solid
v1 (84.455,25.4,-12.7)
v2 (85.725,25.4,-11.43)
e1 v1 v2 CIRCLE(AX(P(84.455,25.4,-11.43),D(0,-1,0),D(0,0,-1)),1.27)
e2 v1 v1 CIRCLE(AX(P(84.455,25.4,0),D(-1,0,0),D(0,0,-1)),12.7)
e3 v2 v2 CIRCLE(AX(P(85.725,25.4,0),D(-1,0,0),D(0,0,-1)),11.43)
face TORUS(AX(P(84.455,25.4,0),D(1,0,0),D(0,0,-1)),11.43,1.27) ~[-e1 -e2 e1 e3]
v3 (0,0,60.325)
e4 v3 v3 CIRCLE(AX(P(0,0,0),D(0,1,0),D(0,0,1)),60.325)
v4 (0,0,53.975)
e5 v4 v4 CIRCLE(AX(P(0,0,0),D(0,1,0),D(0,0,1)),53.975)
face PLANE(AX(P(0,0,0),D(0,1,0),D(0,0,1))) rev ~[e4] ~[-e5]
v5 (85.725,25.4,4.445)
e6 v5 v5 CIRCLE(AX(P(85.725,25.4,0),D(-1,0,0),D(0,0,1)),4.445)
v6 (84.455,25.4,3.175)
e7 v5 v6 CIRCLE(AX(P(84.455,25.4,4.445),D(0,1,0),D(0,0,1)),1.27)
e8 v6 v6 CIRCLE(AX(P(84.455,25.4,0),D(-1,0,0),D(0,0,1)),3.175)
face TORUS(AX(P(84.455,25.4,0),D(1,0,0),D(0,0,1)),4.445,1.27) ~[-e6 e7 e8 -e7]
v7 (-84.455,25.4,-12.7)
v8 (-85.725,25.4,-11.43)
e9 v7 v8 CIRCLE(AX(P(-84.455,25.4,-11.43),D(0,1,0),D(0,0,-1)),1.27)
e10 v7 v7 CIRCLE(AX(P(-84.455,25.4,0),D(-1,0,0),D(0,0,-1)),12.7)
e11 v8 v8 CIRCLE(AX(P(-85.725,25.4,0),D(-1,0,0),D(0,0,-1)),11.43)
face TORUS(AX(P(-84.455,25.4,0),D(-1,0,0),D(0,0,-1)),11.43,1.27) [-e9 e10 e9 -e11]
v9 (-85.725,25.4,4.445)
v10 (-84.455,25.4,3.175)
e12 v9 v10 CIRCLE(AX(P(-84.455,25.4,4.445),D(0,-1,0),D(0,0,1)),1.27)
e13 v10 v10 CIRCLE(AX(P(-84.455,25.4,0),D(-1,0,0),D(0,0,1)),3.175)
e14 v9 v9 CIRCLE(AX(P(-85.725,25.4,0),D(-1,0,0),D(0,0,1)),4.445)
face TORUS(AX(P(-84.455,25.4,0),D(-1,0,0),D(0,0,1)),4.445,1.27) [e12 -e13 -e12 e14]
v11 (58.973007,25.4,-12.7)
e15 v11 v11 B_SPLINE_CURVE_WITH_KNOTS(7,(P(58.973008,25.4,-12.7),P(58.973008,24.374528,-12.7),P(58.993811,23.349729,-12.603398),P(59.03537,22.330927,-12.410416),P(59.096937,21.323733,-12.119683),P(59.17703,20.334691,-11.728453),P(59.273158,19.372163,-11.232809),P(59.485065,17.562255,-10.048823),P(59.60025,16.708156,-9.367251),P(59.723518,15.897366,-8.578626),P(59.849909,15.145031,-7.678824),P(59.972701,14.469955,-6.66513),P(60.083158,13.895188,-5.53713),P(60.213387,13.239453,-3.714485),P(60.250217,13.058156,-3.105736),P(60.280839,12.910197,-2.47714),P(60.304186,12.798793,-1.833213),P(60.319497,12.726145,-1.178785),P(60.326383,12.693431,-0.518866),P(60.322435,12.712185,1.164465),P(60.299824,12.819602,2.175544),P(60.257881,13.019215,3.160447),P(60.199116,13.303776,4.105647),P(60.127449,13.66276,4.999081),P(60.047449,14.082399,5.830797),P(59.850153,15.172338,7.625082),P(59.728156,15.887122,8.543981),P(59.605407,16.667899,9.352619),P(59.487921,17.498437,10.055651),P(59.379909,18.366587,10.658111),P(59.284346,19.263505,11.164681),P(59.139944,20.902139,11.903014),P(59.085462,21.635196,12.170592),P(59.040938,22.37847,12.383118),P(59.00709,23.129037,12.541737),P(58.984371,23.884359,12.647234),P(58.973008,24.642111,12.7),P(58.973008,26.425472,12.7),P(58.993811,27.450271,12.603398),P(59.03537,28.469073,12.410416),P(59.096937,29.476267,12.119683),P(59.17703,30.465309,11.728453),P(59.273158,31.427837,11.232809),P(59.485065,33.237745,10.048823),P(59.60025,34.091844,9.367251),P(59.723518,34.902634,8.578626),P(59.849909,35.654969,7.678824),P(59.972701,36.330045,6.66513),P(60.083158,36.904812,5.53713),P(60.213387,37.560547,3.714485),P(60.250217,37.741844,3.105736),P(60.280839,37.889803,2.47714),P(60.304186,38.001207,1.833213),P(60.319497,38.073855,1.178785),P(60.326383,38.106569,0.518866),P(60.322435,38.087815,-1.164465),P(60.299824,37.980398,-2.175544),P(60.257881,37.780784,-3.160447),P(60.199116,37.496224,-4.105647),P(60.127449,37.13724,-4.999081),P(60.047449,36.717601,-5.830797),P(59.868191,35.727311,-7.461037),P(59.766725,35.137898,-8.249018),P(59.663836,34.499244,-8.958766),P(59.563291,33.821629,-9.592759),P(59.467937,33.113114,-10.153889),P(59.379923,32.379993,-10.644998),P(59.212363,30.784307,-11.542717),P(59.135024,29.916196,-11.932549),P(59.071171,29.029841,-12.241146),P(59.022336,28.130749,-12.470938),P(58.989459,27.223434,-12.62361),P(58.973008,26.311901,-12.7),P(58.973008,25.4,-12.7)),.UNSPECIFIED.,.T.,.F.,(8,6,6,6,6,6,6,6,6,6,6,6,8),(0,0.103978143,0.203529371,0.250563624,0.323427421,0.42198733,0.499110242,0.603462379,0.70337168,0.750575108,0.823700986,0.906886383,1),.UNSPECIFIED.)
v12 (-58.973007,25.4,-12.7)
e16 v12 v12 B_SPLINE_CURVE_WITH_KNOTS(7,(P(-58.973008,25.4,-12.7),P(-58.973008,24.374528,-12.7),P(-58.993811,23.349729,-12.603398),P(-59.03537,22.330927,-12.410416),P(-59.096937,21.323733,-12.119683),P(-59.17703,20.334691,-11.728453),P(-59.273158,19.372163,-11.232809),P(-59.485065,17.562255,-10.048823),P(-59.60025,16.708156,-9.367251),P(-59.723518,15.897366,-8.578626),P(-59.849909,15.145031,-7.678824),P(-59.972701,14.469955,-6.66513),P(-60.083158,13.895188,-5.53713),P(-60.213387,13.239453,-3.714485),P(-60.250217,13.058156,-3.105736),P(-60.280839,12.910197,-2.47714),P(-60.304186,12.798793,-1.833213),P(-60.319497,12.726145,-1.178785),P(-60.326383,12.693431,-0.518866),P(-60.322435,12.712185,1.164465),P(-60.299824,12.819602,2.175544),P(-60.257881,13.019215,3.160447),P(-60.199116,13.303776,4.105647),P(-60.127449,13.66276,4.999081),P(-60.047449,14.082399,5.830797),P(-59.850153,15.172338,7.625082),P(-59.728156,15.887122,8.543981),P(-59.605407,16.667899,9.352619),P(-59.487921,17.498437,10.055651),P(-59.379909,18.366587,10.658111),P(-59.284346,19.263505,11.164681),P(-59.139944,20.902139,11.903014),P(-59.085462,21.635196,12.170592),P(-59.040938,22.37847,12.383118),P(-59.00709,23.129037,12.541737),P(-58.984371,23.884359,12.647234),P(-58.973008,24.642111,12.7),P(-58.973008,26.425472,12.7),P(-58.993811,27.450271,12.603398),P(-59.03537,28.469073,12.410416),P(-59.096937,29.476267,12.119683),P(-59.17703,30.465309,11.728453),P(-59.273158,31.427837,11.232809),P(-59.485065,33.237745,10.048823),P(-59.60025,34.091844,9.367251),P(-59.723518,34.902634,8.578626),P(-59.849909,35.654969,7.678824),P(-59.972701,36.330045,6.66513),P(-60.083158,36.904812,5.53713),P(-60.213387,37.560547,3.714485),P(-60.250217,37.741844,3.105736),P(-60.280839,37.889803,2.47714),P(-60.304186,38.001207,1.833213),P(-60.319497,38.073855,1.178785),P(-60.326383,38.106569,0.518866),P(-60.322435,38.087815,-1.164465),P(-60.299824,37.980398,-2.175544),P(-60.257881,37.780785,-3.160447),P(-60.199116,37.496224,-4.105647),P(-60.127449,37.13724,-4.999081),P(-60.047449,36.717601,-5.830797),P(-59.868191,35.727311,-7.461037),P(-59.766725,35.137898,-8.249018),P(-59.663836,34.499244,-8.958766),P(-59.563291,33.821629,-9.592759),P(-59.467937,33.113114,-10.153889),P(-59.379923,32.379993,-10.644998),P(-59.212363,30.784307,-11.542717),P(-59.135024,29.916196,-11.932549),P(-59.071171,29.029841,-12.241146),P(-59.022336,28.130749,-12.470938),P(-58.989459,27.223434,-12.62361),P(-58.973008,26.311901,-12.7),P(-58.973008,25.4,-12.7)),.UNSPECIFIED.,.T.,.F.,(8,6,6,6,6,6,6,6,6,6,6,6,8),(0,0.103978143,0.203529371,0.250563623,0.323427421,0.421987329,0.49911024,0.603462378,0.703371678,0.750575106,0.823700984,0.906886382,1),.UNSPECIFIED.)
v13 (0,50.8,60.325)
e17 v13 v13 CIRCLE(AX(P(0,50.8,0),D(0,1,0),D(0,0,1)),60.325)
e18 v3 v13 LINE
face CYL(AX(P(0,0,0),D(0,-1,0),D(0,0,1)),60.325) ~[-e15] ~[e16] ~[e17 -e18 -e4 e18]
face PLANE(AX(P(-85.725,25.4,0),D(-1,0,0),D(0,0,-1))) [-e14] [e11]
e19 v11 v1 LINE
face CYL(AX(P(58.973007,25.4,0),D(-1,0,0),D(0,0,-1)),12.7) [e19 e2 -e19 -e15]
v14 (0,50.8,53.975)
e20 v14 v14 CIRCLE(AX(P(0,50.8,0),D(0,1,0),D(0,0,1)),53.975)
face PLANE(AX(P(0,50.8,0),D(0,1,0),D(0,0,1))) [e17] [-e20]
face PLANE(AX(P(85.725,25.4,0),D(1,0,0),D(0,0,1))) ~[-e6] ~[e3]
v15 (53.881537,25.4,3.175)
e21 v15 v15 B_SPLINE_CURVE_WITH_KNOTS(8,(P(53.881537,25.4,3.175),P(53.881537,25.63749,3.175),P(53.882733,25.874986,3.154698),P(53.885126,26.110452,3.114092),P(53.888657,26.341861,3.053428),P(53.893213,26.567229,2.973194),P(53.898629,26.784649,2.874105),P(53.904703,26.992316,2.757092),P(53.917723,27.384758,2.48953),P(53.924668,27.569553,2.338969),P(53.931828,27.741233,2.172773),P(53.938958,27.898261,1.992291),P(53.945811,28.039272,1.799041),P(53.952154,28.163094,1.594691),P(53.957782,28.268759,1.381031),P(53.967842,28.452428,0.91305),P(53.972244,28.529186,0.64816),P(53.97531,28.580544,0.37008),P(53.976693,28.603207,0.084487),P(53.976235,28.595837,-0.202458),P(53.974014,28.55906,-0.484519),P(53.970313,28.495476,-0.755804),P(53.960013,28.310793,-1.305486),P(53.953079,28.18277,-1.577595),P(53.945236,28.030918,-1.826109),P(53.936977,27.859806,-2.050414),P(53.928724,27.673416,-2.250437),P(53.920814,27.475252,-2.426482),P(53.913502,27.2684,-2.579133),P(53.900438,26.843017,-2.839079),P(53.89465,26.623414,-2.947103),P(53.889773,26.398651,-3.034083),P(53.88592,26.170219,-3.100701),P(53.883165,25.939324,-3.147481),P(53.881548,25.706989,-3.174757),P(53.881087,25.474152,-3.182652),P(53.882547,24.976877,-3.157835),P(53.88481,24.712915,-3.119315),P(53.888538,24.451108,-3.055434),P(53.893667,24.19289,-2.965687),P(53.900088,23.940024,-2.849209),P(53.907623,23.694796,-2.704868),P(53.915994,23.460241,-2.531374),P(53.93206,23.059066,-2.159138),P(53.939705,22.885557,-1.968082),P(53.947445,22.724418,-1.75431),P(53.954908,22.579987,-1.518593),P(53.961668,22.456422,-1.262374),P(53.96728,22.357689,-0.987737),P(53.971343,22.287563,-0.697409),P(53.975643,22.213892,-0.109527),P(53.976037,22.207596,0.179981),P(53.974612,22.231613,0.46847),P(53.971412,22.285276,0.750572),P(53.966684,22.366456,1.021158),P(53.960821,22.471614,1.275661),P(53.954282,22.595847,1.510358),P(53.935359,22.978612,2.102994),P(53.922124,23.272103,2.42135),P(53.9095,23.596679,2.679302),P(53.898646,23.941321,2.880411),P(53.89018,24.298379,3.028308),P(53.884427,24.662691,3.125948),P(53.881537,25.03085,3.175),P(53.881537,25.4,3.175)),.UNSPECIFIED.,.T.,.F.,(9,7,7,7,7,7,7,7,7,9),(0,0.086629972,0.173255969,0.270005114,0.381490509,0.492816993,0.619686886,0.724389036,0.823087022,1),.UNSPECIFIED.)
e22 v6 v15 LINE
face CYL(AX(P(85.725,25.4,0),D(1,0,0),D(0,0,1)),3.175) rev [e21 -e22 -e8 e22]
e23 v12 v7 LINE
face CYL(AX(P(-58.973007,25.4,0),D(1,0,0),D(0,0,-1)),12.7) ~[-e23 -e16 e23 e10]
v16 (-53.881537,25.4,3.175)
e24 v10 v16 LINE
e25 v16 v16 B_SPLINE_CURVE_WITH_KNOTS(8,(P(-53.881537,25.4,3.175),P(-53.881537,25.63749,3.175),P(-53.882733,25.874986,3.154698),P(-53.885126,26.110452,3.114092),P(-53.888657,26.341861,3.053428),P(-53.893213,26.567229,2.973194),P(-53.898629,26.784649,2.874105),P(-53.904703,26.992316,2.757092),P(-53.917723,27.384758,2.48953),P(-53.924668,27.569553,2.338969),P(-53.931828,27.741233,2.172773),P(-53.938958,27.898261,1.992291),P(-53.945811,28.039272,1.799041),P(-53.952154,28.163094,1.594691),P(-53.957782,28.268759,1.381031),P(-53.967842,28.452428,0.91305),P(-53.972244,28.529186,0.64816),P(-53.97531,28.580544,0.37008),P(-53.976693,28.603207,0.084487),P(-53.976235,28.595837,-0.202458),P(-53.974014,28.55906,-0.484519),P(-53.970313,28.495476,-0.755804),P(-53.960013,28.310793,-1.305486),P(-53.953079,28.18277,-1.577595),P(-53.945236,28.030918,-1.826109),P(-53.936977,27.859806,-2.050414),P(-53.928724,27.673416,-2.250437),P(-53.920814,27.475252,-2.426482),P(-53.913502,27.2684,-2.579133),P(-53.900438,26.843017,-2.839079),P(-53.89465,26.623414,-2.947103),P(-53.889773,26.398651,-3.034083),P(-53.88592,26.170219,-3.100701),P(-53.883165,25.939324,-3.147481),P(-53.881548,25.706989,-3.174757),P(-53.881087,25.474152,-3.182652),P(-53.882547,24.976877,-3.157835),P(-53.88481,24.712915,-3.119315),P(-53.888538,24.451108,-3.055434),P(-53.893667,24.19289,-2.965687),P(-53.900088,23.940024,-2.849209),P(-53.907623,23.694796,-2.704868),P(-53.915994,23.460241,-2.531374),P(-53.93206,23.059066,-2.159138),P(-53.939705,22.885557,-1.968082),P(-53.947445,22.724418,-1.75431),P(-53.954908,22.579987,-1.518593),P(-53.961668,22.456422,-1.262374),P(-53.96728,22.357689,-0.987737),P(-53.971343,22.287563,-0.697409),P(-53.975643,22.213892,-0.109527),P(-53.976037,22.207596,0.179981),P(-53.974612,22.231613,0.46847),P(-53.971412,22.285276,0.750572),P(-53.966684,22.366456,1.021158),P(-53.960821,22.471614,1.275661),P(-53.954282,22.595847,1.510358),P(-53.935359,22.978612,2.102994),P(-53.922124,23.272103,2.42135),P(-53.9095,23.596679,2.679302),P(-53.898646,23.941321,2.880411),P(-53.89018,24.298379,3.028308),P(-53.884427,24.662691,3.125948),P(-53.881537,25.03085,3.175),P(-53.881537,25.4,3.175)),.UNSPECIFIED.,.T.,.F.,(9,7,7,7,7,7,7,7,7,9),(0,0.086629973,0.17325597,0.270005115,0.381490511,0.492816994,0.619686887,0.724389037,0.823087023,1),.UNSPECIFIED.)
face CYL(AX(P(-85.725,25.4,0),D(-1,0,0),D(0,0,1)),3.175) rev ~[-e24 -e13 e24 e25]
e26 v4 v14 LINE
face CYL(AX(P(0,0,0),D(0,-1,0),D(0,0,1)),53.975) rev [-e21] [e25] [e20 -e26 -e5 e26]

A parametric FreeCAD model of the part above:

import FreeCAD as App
import Part
import Sketcher
Q = App.Units.Quantity


def edges_at(feature, points):
    """Names of the edges that pass closest to the given points."""
    edges = feature.Shape.Edges
    near = lambda p: min(range(len(edges)), key=lambda i: edges[i].distToShape(Part.Vertex(*p))[0])
    return sorted({f"Edge{near(p) + 1}" for p in points})

doc = App.newDocument("Part")
body = doc.addObject("PartDesign::Body", "Body")

# Sketch on XZ plane
sketch1 = body.newObject("Sketcher::SketchObject", "Sketch")
sketch1.AttachmentSupport = (doc.getObject("XZ_Plane"), [""])
sketch1.MapMode = "FlatFace"
sketch1.addGeometry([
    Part.Circle(App.Vector(0, 0, 0), App.Vector(0, 0, 1), 60),
    Part.Circle(App.Vector(0, 0, 0), App.Vector(0, 0, 1), 54),
], False)
sketch1.addConstraint([
    Sketcher.Constraint("Coincident", 0, 3, -1, 1),
    Sketcher.Constraint("Coincident", 1, 3, -1, 1),
    Sketcher.Constraint("Diameter", 0, Q("4.75 in")),
    Sketcher.Constraint("Diameter", 1, Q("4.25 in")),
])
pad1 = body.newObject("PartDesign::Pad", "Pad")
pad1.Profile = sketch1
pad1.Length = Q("2 in")
pad1.Reversed = True

# Sketch on YZ plane
sketch2 = body.newObject("Sketcher::SketchObject", "Sketch001")
sketch2.AttachmentSupport = (doc.getObject("YZ_Plane"), [""])
sketch2.MapMode = "FlatFace"
sketch2.AttachmentOffset = App.Placement(App.Vector(0, 0, -58.973007), App.Rotation())
sketch2.addGeometry(Part.Circle(App.Vector(25, 0, 0), App.Vector(0, 0, 1), 13), False)
sketch2.addConstraint([
    Sketcher.Constraint("PointOnObject", 0, 3, -1),
    Sketcher.Constraint("Diameter", 0, Q("1 in")),
    Sketcher.Constraint("DistanceX", -1, 1, 0, 3, Q("1 in")),
])
pad2 = body.newObject("PartDesign::Pad", "Pad001")
pad2.Profile = sketch2
pad2.Length = 26.751993
pad2.Reversed = True

# Sketch on YZ plane
sketch3 = body.newObject("Sketcher::SketchObject", "Sketch002")
sketch3.AttachmentSupport = (doc.getObject("YZ_Plane"), [""])
sketch3.MapMode = "FlatFace"
sketch3.AttachmentOffset = App.Placement(App.Vector(0, 0, -3.375 * 25.4), App.Rotation())
sketch3.addGeometry(Part.Circle(App.Vector(25.4, 0, 0), App.Vector(0, 0, 1), 3.2), False)
sketch3.addConstraint([
    Sketcher.Constraint("PointOnObject", 0, 3, -1),
    Sketcher.Constraint("Diameter", 0, Q("0.25 in")),
    Sketcher.Constraint("DistanceX", -1, 1, 0, 3, Q("1 in")),
])
pocket1 = body.newObject("PartDesign::Pocket", "Pocket")
pocket1.Profile = sketch3
pocket1.Length = Q("2 in")
pocket1.Reversed = True
doc.recompute()

mirrored = body.newObject("PartDesign::Mirrored", "Mirrored")
mirrored.Originals = [pad2, pocket1]
mirrored.MirrorPlane = (doc.getObject("YZ_Plane"), [""])
body.Tip = mirrored
doc.recompute()

fillet = body.newObject("PartDesign::Fillet", "Fillet")
fillet.Base = (mirrored, edges_at(mirrored, [
    (-85.725, 25.4, 12.7),
    (-85.725, 25.4, -3.175),
    (85.725, 25.4, 12.7),
    (85.725, 25.4, -3.175),
]))
fillet.Radius = Q("0.05 in")

doc.recompute()
